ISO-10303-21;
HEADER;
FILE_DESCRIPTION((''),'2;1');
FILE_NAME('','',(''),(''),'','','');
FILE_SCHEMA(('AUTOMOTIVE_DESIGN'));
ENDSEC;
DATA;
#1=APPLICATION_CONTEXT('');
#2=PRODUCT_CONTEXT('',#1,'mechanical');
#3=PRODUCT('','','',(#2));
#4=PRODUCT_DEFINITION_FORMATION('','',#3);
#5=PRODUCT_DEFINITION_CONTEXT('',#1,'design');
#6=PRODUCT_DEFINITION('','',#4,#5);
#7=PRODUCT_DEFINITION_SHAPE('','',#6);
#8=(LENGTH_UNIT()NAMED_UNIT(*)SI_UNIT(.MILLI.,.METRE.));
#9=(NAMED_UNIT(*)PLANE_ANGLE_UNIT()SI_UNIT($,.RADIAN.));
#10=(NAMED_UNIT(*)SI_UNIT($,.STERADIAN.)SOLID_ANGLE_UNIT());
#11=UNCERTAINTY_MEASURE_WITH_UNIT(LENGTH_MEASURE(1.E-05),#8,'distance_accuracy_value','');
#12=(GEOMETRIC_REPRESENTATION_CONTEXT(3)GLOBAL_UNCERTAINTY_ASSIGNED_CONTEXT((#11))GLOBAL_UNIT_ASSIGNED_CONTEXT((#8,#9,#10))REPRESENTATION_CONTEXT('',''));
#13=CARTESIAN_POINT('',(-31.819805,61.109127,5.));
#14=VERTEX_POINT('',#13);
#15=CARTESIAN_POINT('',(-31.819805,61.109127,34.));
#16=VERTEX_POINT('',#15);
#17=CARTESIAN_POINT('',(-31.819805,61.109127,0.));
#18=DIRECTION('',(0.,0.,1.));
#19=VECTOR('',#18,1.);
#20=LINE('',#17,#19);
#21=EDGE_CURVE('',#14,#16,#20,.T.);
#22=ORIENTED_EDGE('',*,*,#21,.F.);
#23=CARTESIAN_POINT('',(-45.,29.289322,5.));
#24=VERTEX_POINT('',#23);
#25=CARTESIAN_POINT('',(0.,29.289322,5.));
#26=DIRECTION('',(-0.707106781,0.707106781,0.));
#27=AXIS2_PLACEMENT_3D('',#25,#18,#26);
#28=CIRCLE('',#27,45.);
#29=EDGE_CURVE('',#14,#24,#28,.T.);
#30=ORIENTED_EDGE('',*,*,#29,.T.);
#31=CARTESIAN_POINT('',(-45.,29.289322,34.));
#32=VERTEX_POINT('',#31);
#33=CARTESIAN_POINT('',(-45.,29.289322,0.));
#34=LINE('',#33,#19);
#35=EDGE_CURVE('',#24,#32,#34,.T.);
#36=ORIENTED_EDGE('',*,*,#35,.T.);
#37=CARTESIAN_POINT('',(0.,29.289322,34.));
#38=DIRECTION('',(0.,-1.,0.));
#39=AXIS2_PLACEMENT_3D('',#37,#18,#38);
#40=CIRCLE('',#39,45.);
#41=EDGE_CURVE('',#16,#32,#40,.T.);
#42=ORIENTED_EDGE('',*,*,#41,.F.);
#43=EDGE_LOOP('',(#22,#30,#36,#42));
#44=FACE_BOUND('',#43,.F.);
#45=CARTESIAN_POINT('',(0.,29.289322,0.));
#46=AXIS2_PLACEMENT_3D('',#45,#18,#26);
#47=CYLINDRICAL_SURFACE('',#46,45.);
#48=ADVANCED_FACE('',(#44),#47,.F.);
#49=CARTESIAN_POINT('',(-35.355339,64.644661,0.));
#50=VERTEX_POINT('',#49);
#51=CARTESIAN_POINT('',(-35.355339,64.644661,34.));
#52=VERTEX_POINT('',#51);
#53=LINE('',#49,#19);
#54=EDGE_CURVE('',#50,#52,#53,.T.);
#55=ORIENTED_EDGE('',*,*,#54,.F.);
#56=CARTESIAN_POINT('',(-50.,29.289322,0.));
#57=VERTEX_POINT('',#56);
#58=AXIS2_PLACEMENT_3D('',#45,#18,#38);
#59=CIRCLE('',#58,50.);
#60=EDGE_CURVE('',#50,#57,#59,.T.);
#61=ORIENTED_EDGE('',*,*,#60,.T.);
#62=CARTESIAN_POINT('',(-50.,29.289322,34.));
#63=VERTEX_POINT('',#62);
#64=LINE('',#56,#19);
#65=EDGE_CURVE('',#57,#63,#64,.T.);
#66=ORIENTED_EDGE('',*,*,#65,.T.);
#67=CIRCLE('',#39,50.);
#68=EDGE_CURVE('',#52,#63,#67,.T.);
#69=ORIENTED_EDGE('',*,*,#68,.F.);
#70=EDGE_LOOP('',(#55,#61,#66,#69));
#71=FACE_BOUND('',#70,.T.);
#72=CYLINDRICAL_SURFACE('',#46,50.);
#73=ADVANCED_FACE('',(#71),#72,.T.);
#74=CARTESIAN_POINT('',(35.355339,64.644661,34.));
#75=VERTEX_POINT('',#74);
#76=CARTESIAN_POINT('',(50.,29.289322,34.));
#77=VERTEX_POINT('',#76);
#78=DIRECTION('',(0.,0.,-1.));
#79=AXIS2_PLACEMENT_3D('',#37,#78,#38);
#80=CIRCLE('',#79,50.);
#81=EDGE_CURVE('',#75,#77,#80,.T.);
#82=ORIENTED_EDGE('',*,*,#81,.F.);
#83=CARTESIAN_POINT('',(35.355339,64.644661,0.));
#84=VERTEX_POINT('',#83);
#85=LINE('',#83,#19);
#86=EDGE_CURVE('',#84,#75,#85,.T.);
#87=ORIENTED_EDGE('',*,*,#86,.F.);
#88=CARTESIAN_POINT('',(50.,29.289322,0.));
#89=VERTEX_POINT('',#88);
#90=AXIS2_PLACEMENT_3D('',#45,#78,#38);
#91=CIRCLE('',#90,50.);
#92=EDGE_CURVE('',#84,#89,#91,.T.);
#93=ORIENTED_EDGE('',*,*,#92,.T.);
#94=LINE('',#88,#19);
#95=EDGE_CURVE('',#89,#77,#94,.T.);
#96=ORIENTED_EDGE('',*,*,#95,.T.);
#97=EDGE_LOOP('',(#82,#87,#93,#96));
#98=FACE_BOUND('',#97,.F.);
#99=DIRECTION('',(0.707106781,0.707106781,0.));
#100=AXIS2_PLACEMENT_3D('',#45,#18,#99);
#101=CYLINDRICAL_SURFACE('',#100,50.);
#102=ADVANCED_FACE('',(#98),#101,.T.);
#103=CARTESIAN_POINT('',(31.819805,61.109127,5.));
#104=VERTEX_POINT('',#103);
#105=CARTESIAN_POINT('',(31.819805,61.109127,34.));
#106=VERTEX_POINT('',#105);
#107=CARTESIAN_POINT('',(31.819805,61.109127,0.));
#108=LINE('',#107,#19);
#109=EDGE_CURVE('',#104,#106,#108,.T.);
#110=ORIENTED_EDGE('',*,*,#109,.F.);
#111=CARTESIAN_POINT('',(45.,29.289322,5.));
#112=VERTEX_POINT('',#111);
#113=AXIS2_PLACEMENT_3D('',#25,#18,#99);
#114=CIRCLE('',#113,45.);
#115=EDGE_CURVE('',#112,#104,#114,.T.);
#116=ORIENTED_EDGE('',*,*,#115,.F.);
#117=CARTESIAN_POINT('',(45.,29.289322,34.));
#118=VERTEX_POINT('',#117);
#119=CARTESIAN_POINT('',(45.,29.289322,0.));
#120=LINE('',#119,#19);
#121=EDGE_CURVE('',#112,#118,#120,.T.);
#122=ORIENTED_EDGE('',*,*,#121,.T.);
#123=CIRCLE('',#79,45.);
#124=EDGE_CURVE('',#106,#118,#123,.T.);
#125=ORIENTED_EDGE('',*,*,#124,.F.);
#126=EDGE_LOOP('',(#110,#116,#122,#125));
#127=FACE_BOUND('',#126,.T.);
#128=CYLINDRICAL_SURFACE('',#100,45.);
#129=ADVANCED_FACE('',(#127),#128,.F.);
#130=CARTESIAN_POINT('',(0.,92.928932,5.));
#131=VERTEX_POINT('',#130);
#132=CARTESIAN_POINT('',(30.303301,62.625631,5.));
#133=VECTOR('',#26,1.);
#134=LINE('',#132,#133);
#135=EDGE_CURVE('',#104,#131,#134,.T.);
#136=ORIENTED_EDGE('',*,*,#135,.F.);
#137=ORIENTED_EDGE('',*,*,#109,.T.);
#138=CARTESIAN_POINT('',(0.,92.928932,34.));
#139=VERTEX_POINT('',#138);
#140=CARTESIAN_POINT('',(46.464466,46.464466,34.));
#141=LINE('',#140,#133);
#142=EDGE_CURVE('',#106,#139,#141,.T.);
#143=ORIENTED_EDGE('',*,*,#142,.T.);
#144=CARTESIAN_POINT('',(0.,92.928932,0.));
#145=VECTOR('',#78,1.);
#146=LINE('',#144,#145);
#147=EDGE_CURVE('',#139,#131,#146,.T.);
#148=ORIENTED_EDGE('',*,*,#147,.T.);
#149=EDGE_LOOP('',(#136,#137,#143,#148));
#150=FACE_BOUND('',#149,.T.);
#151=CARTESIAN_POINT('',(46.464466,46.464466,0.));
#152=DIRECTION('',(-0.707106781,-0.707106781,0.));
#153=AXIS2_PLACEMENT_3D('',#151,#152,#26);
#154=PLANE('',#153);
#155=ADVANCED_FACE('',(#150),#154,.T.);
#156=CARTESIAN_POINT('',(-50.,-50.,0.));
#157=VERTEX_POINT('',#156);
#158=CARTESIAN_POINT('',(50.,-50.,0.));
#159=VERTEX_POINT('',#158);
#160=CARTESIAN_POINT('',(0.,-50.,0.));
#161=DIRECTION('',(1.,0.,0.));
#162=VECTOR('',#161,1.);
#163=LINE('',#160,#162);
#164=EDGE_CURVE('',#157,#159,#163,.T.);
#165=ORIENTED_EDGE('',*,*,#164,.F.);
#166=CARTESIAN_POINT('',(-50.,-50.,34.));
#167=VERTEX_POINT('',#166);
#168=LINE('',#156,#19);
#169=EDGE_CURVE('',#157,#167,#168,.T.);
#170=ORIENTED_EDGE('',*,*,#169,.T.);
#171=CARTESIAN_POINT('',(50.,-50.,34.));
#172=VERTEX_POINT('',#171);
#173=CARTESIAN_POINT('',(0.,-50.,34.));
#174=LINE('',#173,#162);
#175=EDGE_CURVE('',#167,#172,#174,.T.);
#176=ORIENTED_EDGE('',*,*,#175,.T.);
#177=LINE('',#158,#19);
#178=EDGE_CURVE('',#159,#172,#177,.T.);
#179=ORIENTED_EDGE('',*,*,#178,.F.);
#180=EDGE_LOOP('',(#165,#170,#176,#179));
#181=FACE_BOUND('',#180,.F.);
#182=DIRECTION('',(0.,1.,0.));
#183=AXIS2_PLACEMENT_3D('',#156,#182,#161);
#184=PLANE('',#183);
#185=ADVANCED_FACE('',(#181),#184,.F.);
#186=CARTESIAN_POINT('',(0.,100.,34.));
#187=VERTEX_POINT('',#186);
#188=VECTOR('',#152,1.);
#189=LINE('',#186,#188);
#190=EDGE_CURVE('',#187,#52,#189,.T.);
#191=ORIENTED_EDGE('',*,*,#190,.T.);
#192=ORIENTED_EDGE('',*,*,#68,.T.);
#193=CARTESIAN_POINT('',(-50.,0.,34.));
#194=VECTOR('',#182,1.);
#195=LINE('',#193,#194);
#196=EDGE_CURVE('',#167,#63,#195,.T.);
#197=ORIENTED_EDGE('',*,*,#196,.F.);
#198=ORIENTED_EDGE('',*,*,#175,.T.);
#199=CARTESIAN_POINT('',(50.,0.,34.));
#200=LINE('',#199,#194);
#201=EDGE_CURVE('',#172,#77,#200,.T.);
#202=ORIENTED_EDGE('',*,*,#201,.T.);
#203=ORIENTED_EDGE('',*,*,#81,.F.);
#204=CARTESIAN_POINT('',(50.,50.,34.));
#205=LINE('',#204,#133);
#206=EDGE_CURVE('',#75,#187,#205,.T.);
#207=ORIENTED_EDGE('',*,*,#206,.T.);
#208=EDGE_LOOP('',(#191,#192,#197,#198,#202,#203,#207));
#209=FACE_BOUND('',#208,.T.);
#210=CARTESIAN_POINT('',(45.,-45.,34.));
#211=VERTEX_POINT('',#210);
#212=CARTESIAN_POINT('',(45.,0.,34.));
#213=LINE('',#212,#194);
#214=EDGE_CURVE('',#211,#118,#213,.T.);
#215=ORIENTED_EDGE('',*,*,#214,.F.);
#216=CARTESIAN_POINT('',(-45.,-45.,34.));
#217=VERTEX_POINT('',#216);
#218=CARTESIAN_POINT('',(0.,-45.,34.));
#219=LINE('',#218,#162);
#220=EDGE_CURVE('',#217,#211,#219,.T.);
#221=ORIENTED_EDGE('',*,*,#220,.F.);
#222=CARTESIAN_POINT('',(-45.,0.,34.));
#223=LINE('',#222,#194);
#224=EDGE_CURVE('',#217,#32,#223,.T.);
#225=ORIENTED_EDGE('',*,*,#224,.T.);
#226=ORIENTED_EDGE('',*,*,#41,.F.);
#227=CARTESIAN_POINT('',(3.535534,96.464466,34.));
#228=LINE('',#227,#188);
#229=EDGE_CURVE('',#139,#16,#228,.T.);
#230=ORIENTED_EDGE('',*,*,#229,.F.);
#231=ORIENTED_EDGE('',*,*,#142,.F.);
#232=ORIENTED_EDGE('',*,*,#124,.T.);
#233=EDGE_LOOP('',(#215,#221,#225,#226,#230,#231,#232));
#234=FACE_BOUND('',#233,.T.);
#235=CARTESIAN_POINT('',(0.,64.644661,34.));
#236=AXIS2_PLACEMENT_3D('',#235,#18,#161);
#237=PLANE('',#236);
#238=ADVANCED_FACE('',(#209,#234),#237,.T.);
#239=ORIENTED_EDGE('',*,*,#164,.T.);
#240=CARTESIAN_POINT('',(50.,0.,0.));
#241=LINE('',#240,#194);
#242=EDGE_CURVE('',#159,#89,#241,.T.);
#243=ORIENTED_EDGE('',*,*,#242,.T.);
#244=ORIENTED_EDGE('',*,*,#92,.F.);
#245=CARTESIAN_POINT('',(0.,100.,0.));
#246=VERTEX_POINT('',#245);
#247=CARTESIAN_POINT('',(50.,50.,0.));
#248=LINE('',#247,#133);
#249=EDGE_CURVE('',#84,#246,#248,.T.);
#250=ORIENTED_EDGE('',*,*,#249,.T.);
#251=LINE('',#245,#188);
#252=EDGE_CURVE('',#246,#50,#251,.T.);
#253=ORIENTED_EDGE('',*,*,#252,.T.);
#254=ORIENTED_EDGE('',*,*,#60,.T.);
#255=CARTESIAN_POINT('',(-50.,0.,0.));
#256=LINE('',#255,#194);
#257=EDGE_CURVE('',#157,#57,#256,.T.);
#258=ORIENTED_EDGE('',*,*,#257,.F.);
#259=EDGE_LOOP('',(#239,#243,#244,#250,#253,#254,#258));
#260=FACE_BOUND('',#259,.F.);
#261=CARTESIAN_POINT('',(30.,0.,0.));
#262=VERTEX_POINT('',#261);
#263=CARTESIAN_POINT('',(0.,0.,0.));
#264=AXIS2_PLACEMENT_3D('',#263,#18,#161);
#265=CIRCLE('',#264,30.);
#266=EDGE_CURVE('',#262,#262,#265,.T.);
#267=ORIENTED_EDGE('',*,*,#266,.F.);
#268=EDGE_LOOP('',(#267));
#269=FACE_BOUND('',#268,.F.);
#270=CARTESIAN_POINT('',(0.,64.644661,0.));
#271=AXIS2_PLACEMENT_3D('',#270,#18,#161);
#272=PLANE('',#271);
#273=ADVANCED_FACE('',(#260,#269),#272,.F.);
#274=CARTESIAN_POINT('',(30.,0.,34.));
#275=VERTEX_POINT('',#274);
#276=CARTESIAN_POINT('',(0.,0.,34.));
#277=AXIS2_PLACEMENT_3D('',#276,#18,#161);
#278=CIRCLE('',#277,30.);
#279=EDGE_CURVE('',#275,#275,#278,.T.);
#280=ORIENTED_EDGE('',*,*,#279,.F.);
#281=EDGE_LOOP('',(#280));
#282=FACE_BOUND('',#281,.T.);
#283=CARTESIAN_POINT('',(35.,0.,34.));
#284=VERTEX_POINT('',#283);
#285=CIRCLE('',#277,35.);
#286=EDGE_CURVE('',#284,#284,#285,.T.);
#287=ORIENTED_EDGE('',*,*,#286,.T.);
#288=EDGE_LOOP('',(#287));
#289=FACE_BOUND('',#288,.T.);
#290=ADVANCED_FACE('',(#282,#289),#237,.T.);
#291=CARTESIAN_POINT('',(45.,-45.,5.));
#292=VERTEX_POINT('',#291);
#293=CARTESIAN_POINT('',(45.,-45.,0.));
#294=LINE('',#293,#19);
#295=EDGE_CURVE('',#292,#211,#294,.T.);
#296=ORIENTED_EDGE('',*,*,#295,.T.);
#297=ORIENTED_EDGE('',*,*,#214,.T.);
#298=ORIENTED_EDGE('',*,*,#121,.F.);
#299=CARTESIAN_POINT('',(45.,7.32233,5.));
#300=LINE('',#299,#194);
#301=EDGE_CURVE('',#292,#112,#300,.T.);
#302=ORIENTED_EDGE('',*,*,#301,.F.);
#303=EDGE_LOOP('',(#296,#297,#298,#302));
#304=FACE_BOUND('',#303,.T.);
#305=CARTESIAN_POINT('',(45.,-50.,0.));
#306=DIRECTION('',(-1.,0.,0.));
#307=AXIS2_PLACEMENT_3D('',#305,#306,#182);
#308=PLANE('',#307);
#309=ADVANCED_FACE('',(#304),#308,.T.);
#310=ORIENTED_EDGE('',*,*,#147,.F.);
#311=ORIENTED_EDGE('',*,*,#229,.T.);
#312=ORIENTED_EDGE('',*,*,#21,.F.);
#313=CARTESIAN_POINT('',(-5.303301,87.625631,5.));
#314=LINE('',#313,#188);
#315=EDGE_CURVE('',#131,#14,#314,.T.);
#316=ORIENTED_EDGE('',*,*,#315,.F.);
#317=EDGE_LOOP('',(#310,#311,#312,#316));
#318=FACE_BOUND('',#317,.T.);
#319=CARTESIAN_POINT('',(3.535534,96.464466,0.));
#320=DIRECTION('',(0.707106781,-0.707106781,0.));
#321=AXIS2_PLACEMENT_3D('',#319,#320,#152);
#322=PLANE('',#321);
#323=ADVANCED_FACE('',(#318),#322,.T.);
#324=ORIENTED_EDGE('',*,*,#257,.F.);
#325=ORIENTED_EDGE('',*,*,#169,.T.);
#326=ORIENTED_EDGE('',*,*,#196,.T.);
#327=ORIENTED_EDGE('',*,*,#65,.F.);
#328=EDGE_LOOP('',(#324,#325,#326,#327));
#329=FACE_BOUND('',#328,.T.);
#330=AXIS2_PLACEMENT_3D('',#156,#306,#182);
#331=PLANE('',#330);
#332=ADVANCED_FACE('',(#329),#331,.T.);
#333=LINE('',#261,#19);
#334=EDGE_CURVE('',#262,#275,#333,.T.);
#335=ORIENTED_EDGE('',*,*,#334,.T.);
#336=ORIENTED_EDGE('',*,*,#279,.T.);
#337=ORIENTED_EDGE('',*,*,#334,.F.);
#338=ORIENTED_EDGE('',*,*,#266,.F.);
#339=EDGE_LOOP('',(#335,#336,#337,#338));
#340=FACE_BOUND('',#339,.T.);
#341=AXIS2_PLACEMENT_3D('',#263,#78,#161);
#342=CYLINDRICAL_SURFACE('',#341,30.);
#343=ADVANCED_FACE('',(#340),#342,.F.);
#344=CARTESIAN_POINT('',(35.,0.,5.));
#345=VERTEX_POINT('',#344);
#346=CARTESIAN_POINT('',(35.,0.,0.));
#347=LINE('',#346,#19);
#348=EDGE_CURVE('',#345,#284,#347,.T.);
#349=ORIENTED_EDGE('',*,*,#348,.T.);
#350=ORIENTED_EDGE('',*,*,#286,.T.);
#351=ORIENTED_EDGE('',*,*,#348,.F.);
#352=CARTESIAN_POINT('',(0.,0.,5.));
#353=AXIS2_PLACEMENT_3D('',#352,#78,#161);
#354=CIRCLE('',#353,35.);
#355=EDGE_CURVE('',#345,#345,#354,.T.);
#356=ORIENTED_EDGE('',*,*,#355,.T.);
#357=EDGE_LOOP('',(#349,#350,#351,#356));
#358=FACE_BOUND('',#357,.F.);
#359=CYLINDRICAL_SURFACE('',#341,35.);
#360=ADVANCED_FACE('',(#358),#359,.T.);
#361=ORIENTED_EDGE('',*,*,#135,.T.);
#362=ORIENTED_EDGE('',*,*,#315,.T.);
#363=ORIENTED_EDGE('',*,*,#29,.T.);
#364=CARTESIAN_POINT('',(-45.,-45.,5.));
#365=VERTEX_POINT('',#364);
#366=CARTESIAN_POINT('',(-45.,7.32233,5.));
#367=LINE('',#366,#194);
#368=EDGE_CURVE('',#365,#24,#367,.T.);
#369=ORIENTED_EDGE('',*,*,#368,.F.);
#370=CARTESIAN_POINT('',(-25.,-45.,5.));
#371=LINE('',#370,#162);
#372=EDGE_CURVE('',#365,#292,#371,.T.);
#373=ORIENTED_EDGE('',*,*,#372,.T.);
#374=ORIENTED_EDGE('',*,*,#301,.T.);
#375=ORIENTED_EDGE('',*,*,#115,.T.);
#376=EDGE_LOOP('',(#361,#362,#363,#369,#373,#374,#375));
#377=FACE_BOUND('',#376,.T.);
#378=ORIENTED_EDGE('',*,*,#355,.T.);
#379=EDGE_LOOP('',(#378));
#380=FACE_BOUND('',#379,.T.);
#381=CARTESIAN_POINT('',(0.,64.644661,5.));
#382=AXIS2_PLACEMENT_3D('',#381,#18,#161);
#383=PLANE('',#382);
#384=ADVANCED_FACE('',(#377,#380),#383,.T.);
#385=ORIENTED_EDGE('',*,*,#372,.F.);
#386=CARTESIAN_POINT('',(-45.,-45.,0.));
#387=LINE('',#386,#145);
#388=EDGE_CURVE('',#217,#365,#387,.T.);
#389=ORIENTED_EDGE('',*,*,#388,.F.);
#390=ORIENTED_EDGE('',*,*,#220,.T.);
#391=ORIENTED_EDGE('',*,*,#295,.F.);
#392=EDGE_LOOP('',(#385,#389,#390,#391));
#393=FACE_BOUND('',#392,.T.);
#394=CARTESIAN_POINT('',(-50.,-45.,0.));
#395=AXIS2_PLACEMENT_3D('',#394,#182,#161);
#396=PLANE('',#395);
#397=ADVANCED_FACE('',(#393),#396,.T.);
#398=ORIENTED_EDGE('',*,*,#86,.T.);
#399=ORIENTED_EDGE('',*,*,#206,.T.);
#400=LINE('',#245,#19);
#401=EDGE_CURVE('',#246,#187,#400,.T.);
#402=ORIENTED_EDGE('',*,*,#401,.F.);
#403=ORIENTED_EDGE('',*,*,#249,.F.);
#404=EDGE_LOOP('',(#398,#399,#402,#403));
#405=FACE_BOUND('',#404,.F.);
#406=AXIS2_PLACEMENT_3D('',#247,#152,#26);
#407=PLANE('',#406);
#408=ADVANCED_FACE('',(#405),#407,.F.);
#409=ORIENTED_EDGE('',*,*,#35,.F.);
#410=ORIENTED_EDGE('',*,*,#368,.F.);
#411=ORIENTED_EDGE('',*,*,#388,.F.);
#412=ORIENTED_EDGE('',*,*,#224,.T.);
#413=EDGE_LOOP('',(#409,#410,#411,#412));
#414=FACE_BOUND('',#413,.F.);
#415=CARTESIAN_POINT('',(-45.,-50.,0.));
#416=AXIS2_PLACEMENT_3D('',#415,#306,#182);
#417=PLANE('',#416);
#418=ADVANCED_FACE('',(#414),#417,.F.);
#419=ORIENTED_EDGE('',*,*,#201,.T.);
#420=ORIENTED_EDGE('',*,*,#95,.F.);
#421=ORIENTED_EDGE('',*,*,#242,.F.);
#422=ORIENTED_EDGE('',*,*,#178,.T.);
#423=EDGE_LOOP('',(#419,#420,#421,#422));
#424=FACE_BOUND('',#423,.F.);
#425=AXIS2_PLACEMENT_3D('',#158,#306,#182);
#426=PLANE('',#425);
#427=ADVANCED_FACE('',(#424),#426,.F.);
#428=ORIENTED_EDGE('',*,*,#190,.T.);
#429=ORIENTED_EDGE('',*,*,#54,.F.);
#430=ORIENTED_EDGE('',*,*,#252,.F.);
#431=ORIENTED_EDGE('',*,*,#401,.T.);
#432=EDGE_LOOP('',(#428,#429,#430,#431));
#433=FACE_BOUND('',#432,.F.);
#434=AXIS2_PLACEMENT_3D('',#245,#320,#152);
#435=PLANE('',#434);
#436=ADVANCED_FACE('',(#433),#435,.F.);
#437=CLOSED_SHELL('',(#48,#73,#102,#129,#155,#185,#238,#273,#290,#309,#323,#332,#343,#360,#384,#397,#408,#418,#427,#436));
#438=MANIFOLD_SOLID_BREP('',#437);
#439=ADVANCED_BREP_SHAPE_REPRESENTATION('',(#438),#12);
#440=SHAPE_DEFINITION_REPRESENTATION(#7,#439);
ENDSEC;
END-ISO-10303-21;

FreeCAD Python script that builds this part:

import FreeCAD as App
import Part
import Sketcher
Q = App.Units.Quantity


def edges_at(feature, points):
    """Names of the edges that pass closest to the given points."""
    edges = feature.Shape.Edges
    near = lambda p: min(range(len(edges)), key=lambda i: edges[i].distToShape(Part.Vertex(*p))[0])
    return sorted({f"Edge{near(p) + 1}" for p in points})


def faces_at(feature, points):
    """Names of the faces that lie closest to the given points."""
    faces = feature.Shape.Faces
    near = lambda p: min(range(len(faces)), key=lambda i: faces[i].distToShape(Part.Vertex(*p))[0])
    return sorted({f"Face{near(p) + 1}" for p in points})


def add_polygon(sketch, points):
    """Adds a closed chain of lines whose ends are joined by coincident constraints."""
    first, n = sketch.GeometryCount, len(points)
    for a, b in zip(points, points[1:] + points[:1]):
        sketch.addGeometry(Part.LineSegment(App.Vector(*a, 0), App.Vector(*b, 0)), False)
    for i in range(n):
        sketch.addConstraint(Sketcher.Constraint("Coincident", first + i, 2, first + (i + 1) % n, 1))

doc = App.newDocument("Part")
body = doc.addObject("PartDesign::Body", "Body")

# Sketch on XY plane
sketch1 = body.newObject("Sketcher::SketchObject", "Sketch")
sketch1.AttachmentSupport = (doc.getObject("XY_Plane"), [""])
sketch1.MapMode = "FlatFace"
add_polygon(sketch1, [(0, 100), (-50, 50), (-50, -50), (50, -50), (50, 50)])  # lines 0-4
sketch1.addGeometry(Part.Circle(App.Vector(0, 0, 0), App.Vector(0, 0, 1), 30), False)  # 5
sketch1.addConstraint([
    Sketcher.Constraint("Vertical", 1),
    Sketcher.Constraint("Horizontal", 2),
    Sketcher.Constraint("Vertical", 3),
    Sketcher.Constraint("Coincident", 5, 3, -1, 1),
    Sketcher.Constraint("Symmetric", 0, 2, 2, 2, -1, 1),
    Sketcher.Constraint("PointOnObject", 4, 2, -2),
    Sketcher.Constraint("Perpendicular", 0, 4),
    Sketcher.Constraint("Horizontal", 0, 2, 3, 2),
    Sketcher.Constraint("Equal", 2, 1),
    Sketcher.Constraint("Diameter", 5, Q("60 mm")),
    Sketcher.Constraint("DistanceX", 2, 1, 2, 2, Q("100 mm")),
])
pad1 = body.newObject("PartDesign::Pad", "Pad")
pad1.Profile = sketch1
pad1.Length = 34
doc.recompute()

fillet = body.newObject("PartDesign::Fillet", "Fillet")
fillet.Base = (pad1, edges_at(pad1, [(-50, 50, 17), (50, 50, 17)]))
fillet.Radius = 50
doc.recompute()

thickness = body.newObject("PartDesign::Thickness", "Thickness")
thickness.Base = (fillet, faces_at(fillet, [(-40, 25, 34)]))
thickness.Value = 5
thickness.Reversed = True
thickness.Join = "Arc"

doc.recompute()
